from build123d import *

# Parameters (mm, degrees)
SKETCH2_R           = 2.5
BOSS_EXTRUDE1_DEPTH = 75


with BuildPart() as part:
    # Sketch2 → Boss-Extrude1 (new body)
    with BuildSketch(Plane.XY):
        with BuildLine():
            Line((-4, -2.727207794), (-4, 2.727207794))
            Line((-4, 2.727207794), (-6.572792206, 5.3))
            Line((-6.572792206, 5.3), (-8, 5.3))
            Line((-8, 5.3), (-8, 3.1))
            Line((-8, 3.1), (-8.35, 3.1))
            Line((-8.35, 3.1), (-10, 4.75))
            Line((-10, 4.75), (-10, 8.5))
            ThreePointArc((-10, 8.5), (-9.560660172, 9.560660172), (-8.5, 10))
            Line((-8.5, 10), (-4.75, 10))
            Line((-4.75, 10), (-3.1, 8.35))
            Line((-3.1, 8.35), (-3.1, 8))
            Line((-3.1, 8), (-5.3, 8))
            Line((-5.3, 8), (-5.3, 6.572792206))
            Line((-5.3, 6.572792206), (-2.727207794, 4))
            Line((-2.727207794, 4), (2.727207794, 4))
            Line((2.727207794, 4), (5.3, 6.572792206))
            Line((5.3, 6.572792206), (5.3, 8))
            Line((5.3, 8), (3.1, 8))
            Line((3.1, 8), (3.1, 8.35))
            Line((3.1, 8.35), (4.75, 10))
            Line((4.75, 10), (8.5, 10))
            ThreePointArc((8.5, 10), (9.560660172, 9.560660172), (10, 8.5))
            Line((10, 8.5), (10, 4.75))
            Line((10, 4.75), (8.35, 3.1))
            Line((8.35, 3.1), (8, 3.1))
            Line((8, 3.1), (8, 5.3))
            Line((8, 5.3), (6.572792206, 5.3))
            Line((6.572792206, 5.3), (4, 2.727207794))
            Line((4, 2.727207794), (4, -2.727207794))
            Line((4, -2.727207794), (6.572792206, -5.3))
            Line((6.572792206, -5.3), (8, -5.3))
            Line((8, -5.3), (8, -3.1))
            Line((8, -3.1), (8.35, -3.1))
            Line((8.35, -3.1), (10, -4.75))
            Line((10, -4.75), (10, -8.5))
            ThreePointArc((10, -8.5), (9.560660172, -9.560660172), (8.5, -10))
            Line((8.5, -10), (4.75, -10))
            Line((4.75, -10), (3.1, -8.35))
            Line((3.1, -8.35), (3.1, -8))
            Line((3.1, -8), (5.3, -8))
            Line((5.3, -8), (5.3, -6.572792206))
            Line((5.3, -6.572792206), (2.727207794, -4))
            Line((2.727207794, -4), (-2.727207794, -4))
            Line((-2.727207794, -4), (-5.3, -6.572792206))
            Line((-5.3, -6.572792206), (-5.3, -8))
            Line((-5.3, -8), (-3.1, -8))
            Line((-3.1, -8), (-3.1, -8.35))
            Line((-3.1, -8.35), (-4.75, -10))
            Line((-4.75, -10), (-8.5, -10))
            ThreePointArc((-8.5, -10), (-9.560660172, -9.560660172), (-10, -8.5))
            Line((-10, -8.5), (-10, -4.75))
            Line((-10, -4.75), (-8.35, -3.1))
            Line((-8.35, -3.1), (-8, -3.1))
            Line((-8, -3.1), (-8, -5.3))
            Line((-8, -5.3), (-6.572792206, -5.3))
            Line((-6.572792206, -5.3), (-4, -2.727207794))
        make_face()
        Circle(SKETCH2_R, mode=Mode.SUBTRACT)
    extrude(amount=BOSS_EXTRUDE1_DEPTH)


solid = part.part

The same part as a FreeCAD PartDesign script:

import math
import FreeCAD as App
import Part
import Sketcher

doc = App.newDocument("Part")
params = doc.addObject("Spreadsheet::Sheet", "Params")
for row, (alias, value) in enumerate([
    ("sketch1_diameter", "5 mm"),
    ("sketch1_radius", "1.5 mm"),
    ("sketch1_width", "2.2 mm"),
    ("sketch1_width2", "0.35 mm"),
    ("sketch1_width3", "3.75 mm"),
    ("pad1_length", "75 mm"),
], start=1):
    params.set(f"A{row}", alias)
    params.set(f"B{row}", "=" + value)
    params.setAlias(f"B{row}", alias)

body = doc.addObject("PartDesign::Body", "Body")

# Sketch on XY plane
sketch1 = doc.addObject("Sketcher::SketchObject", "Sketch")
body.addObject(sketch1)
sketch1.AttachmentSupport = (doc.XY_Plane, [""])
sketch1.MapMode = "FlatFace"
sketch1.addGeometry([
    Part.LineSegment(App.Vector(-4, 2.73, 0), App.Vector(-4, -2.73, 0)),  # 0
    Part.LineSegment(App.Vector(-4, -2.73, 0), App.Vector(-6.57, -5.3, 0)),  # 1
    Part.LineSegment(App.Vector(-6.57, -5.3, 0), App.Vector(-8, -5.3, 0)),  # 2
    Part.LineSegment(App.Vector(-8, -5.3, 0), App.Vector(-8, -3.1, 0)),  # 3
    Part.LineSegment(App.Vector(-8, -3.1, 0), App.Vector(-8.35, -3.1, 0)),  # 4
    Part.LineSegment(App.Vector(-8.35, -3.1, 0), App.Vector(-10, -4.75, 0)),  # 5
    Part.LineSegment(App.Vector(-10, -4.75, 0), App.Vector(-10, -8.5, 0)),  # 6
    Part.ArcOfCircle(Part.Circle(App.Vector(-8.5, -8.5, 0), App.Vector(0, 0, 1), 1.5), math.radians(180), math.radians(270)),  # 7
    Part.LineSegment(App.Vector(-8.5, -10, 0), App.Vector(-4.75, -10, 0)),  # 8
    Part.LineSegment(App.Vector(-4.75, -10, 0), App.Vector(-3.1, -8.35, 0)),  # 9
    Part.LineSegment(App.Vector(-3.1, -8.35, 0), App.Vector(-3.1, -8, 0)),  # 10
    Part.LineSegment(App.Vector(-3.1, -8, 0), App.Vector(-5.3, -8, 0)),  # 11
    Part.LineSegment(App.Vector(-5.3, -8, 0), App.Vector(-5.3, -6.57, 0)),  # 12
    Part.LineSegment(App.Vector(-5.3, -6.57, 0), App.Vector(-2.73, -4, 0)),  # 13
    Part.LineSegment(App.Vector(-2.73, -4, 0), App.Vector(2.73, -4, 0)),  # 14
    Part.LineSegment(App.Vector(2.73, -4, 0), App.Vector(5.3, -6.57, 0)),  # 15
    Part.LineSegment(App.Vector(5.3, -6.57, 0), App.Vector(5.3, -8, 0)),  # 16
    Part.LineSegment(App.Vector(5.3, -8, 0), App.Vector(3.1, -8, 0)),  # 17
    Part.LineSegment(App.Vector(3.1, -8, 0), App.Vector(3.1, -8.35, 0)),  # 18
    Part.LineSegment(App.Vector(3.1, -8.35, 0), App.Vector(4.75, -10, 0)),  # 19
    Part.LineSegment(App.Vector(4.75, -10, 0), App.Vector(8.5, -10, 0)),  # 20
    Part.ArcOfCircle(Part.Circle(App.Vector(8.5, -8.5, 0), App.Vector(0, 0, 1), 1.5), math.radians(-90), math.radians(0)),  # 21
    Part.LineSegment(App.Vector(10, -8.5, 0), App.Vector(10, -4.75, 0)),  # 22
    Part.LineSegment(App.Vector(10, -4.75, 0), App.Vector(8.35, -3.1, 0)),  # 23
    Part.LineSegment(App.Vector(8.35, -3.1, 0), App.Vector(8, -3.1, 0)),  # 24
    Part.LineSegment(App.Vector(8, -3.1, 0), App.Vector(8, -5.3, 0)),  # 25
    Part.LineSegment(App.Vector(8, -5.3, 0), App.Vector(6.57, -5.3, 0)),  # 26
    Part.LineSegment(App.Vector(6.57, -5.3, 0), App.Vector(4, -2.73, 0)),  # 27
    Part.LineSegment(App.Vector(4, -2.73, 0), App.Vector(4, 2.73, 0)),  # 28
    Part.LineSegment(App.Vector(4, 2.73, 0), App.Vector(6.57, 5.3, 0)),  # 29
    Part.LineSegment(App.Vector(6.57, 5.3, 0), App.Vector(8, 5.3, 0)),  # 30
    Part.LineSegment(App.Vector(8, 5.3, 0), App.Vector(8, 3.1, 0)),  # 31
    Part.LineSegment(App.Vector(8, 3.1, 0), App.Vector(8.35, 3.1, 0)),  # 32
    Part.LineSegment(App.Vector(8.35, 3.1, 0), App.Vector(10, 4.75, 0)),  # 33
    Part.LineSegment(App.Vector(10, 4.75, 0), App.Vector(10, 8.5, 0)),  # 34
    Part.ArcOfCircle(Part.Circle(App.Vector(8.5, 8.5, 0), App.Vector(0, 0, 1), 1.5), math.radians(0), math.radians(90)),  # 35
    Part.LineSegment(App.Vector(8.5, 10, 0), App.Vector(4.75, 10, 0)),  # 36
    Part.LineSegment(App.Vector(4.75, 10, 0), App.Vector(3.1, 8.35, 0)),  # 37
    Part.LineSegment(App.Vector(3.1, 8.35, 0), App.Vector(3.1, 8, 0)),  # 38
    Part.LineSegment(App.Vector(3.1, 8, 0), App.Vector(5.3, 8, 0)),  # 39
    Part.LineSegment(App.Vector(5.3, 8, 0), App.Vector(5.3, 6.57, 0)),  # 40
    Part.LineSegment(App.Vector(5.3, 6.57, 0), App.Vector(2.73, 4, 0)),  # 41
    Part.LineSegment(App.Vector(2.73, 4, 0), App.Vector(-2.73, 4, 0)),  # 42
    Part.LineSegment(App.Vector(-2.73, 4, 0), App.Vector(-5.3, 6.57, 0)),  # 43
    Part.LineSegment(App.Vector(-5.3, 6.57, 0), App.Vector(-5.3, 8, 0)),  # 44
    Part.LineSegment(App.Vector(-5.3, 8, 0), App.Vector(-3.1, 8, 0)),  # 45
    Part.LineSegment(App.Vector(-3.1, 8, 0), App.Vector(-3.1, 8.35, 0)),  # 46
    Part.LineSegment(App.Vector(-3.1, 8.35, 0), App.Vector(-4.75, 10, 0)),  # 47
    Part.LineSegment(App.Vector(-4.75, 10, 0), App.Vector(-8.5, 10, 0)),  # 48
    Part.ArcOfCircle(Part.Circle(App.Vector(-8.5, 8.5, 0), App.Vector(0, 0, 1), 1.5), math.radians(90), math.radians(180)),  # 49
    Part.LineSegment(App.Vector(-10, 8.5, 0), App.Vector(-10, 4.75, 0)),  # 50
    Part.LineSegment(App.Vector(-10, 4.75, 0), App.Vector(-8.35, 3.1, 0)),  # 51
    Part.LineSegment(App.Vector(-8.35, 3.1, 0), App.Vector(-8, 3.1, 0)),  # 52
    Part.LineSegment(App.Vector(-8, 3.1, 0), App.Vector(-8, 5.3, 0)),  # 53
    Part.LineSegment(App.Vector(-8, 5.3, 0), App.Vector(-6.57, 5.3, 0)),  # 54
    Part.LineSegment(App.Vector(-6.57, 5.3, 0), App.Vector(-4, 2.73, 0)),  # 55
    Part.Circle(App.Vector(0, 0, 0), App.Vector(0, 0, 1), 2.5),  # 56
], False)
sketch1.addConstraint([
    Sketcher.Constraint("Coincident", 0, 2, 1, 1),
    Sketcher.Constraint("Coincident", 1, 2, 2, 1),
    Sketcher.Constraint("Coincident", 2, 2, 3, 1),
    Sketcher.Constraint("Coincident", 3, 2, 4, 1),
    Sketcher.Constraint("Coincident", 4, 2, 5, 1),
    Sketcher.Constraint("Coincident", 5, 2, 6, 1),
    Sketcher.Constraint("Tangent", 6, 2, 7, 1),
    Sketcher.Constraint("Tangent", 7, 2, 8, 1),
    Sketcher.Constraint("Coincident", 8, 2, 9, 1),
    Sketcher.Constraint("Coincident", 9, 2, 10, 1),
    Sketcher.Constraint("Coincident", 10, 2, 11, 1),
    Sketcher.Constraint("Coincident", 11, 2, 12, 1),
    Sketcher.Constraint("Coincident", 12, 2, 13, 1),
    Sketcher.Constraint("Coincident", 13, 2, 14, 1),
    Sketcher.Constraint("Coincident", 14, 2, 15, 1),
    Sketcher.Constraint("Coincident", 15, 2, 16, 1),
    Sketcher.Constraint("Coincident", 16, 2, 17, 1),
    Sketcher.Constraint("Coincident", 17, 2, 18, 1),
    Sketcher.Constraint("Coincident", 18, 2, 19, 1),
    Sketcher.Constraint("Coincident", 19, 2, 20, 1),
    Sketcher.Constraint("Tangent", 20, 2, 21, 1),
    Sketcher.Constraint("Tangent", 21, 2, 22, 1),
    Sketcher.Constraint("Coincident", 22, 2, 23, 1),
    Sketcher.Constraint("Coincident", 23, 2, 24, 1),
    Sketcher.Constraint("Coincident", 24, 2, 25, 1),
    Sketcher.Constraint("Coincident", 25, 2, 26, 1),
    Sketcher.Constraint("Coincident", 26, 2, 27, 1),
    Sketcher.Constraint("Coincident", 27, 2, 28, 1),
    Sketcher.Constraint("Coincident", 28, 2, 29, 1),
    Sketcher.Constraint("Coincident", 29, 2, 30, 1),
    Sketcher.Constraint("Coincident", 30, 2, 31, 1),
    Sketcher.Constraint("Coincident", 31, 2, 32, 1),
    Sketcher.Constraint("Coincident", 32, 2, 33, 1),
    Sketcher.Constraint("Coincident", 33, 2, 34, 1),
    Sketcher.Constraint("Tangent", 34, 2, 35, 1),
    Sketcher.Constraint("Tangent", 35, 2, 36, 1),
    Sketcher.Constraint("Coincident", 36, 2, 37, 1),
    Sketcher.Constraint("Coincident", 37, 2, 38, 1),
    Sketcher.Constraint("Coincident", 38, 2, 39, 1),
    Sketcher.Constraint("Coincident", 39, 2, 40, 1),
    Sketcher.Constraint("Coincident", 40, 2, 41, 1),
    Sketcher.Constraint("Coincident", 41, 2, 42, 1),
    Sketcher.Constraint("Coincident", 42, 2, 43, 1),
    Sketcher.Constraint("Coincident", 43, 2, 44, 1),
    Sketcher.Constraint("Coincident", 44, 2, 45, 1),
    Sketcher.Constraint("Coincident", 45, 2, 46, 1),
    Sketcher.Constraint("Coincident", 46, 2, 47, 1),
    Sketcher.Constraint("Coincident", 47, 2, 48, 1),
    Sketcher.Constraint("Tangent", 48, 2, 49, 1),
    Sketcher.Constraint("Tangent", 49, 2, 50, 1),
    Sketcher.Constraint("Coincident", 50, 2, 51, 1),
    Sketcher.Constraint("Coincident", 51, 2, 52, 1),
    Sketcher.Constraint("Coincident", 52, 2, 53, 1),
    Sketcher.Constraint("Coincident", 53, 2, 54, 1),
    Sketcher.Constraint("Coincident", 54, 2, 55, 1),
    Sketcher.Constraint("Coincident", 55, 2, 0, 1),
    Sketcher.Constraint("Vertical", 0),
    Sketcher.Constraint("Horizontal", 2),
    Sketcher.Constraint("Vertical", 3),
    Sketcher.Constraint("Horizontal", 4),
    Sketcher.Constraint("Vertical", 6),
    Sketcher.Constraint("Horizontal", 8),
    Sketcher.Constraint("Vertical", 10),
    Sketcher.Constraint("Horizontal", 11),
    Sketcher.Constraint("Vertical", 12),
    Sketcher.Constraint("Horizontal", 14),
    Sketcher.Constraint("Vertical", 16),
    Sketcher.Constraint("Horizontal", 17),
    Sketcher.Constraint("Vertical", 18),
    Sketcher.Constraint("Horizontal", 20),
    Sketcher.Constraint("Vertical", 22),
    Sketcher.Constraint("Horizontal", 24),
    Sketcher.Constraint("Vertical", 25),
    Sketcher.Constraint("Horizontal", 26),
    Sketcher.Constraint("Vertical", 28),
    Sketcher.Constraint("Horizontal", 30),
    Sketcher.Constraint("Vertical", 31),
    Sketcher.Constraint("Horizontal", 32),
    Sketcher.Constraint("Vertical", 34),
    Sketcher.Constraint("Horizontal", 36),
    Sketcher.Constraint("Vertical", 38),
    Sketcher.Constraint("Horizontal", 39),
    Sketcher.Constraint("Vertical", 40),
    Sketcher.Constraint("Horizontal", 42),
    Sketcher.Constraint("Vertical", 44),
    Sketcher.Constraint("Horizontal", 45),
    Sketcher.Constraint("Vertical", 46),
    Sketcher.Constraint("Horizontal", 48),
    Sketcher.Constraint("Vertical", 50),
    Sketcher.Constraint("Horizontal", 52),
    Sketcher.Constraint("Vertical", 53),
    Sketcher.Constraint("Horizontal", 54),
    Sketcher.Constraint("Coincident", 56, 3, -1, 1),
    Sketcher.Constraint("Equal", 7, 21),
    Sketcher.Constraint("Equal", 21, 35),
    Sketcher.Constraint("Equal", 35, 49),
    Sketcher.Constraint("Symmetric", 7, 3, 35, 3, -1, 1),
    Sketcher.Constraint("Symmetric", 21, 3, 49, 3, -1, 1),
    Sketcher.Constraint("Symmetric", 0, 2, 28, 2, -1, 1),
    Sketcher.Constraint("Symmetric", 1, 2, 29, 2, -1, 1),
    Sketcher.Constraint("Symmetric", 3, 2, 31, 2, -1, 1),
    Sketcher.Constraint("Symmetric", 9, 2, 37, 2, -1, 1),
    Sketcher.Constraint("Symmetric", 11, 2, 39, 2, -1, 1),
    Sketcher.Constraint("Symmetric", 13, 2, 41, 2, -1, 1),
    Sketcher.Constraint("Symmetric", 15, 2, 43, 2, -1, 1),
    Sketcher.Constraint("Symmetric", 17, 2, 45, 2, -1, 1),
    Sketcher.Constraint("Symmetric", 23, 2, 51, 2, -1, 1),
    Sketcher.Constraint("Symmetric", 25, 2, 53, 2, -1, 1),
    Sketcher.Constraint("Symmetric", 7, 3, 21, 3, -2),
    Sketcher.Constraint("Symmetric", 12, 2, 15, 2, -2),
    Sketcher.Constraint("Symmetric", 10, 2, 17, 2, -2),
    Sketcher.Constraint("Symmetric", 4, 2, 23, 2, -2),
    Sketcher.Constraint("Symmetric", 2, 2, 25, 2, -2),
    Sketcher.Constraint("Parallel", 1, 5),
    Sketcher.Constraint("Parallel", 5, 9),
    Sketcher.Constraint("Parallel", 9, 13),
    Sketcher.Constraint("Perpendicular", 13, 15),
    Sketcher.Constraint("Parallel", 15, 19),
    Sketcher.Constraint("Parallel", 19, 23),
    Sketcher.Constraint("Parallel", 23, 27),
    Sketcher.Constraint("Parallel", 29, 33),
    Sketcher.Constraint("Parallel", 33, 37),
    Sketcher.Constraint("Parallel", 37, 41),
    Sketcher.Constraint("Perpendicular", 41, 43),
    Sketcher.Constraint("Parallel", 43, 47),
    Sketcher.Constraint("Parallel", 47, 51),
    Sketcher.Constraint("Parallel", 51, 55),
    Sketcher.Constraint("Horizontal", 9, 2, 18, 2),
    Sketcher.Constraint("Horizontal", 5, 2, 22, 2),
    Sketcher.Constraint("Horizontal", 0, 2, 27, 2),
    Sketcher.Constraint("Horizontal", 37, 2, 46, 2),
    Sketcher.Constraint("Horizontal", 33, 2, 50, 2),
    Sketcher.Constraint("Horizontal", 28, 2, 55, 2),
    Sketcher.Constraint("Equal", 42, 0),
    Sketcher.Constraint("Equal", 45, 3),
    Sketcher.Constraint("Equal", 48, 6),
    Sketcher.Constraint("Equal", 52, 10),
    Sketcher.Constraint("Equal", 54, 12),
    Sketcher.Constraint("Equal", 5, 9),
    Sketcher.Constraint("Equal", 1, 13),
    Sketcher.Constraint("Diameter", 56, 5.0),
    Sketcher.Constraint("Radius", 7, 1.5),
    Sketcher.Constraint("DistanceX", 11, 2, 11, 1, 2.2),
    Sketcher.Constraint("DistanceX", 0, 2, -1, 1, 4.0),
    Sketcher.Constraint("DistanceX", 2, 2, -1, 1, 8.0),
    Sketcher.Constraint("DistanceX", 5, 2, -1, 1, 10.0),
    Sketcher.Constraint("DistanceX", 4, 2, 4, 1, 0.35),
    Sketcher.Constraint("DistanceX", 8, 1, 8, 2, 3.75),
    Sketcher.Constraint("DistanceX", 2, 2, 2, 1, 1.427208),
])
sketch1.setExpression("Constraints[140]", "Params.sketch1_diameter")
sketch1.setExpression("Constraints[141]", "Params.sketch1_radius")
sketch1.setExpression("Constraints[142]", "Params.sketch1_width")
sketch1.setExpression("Constraints[146]", "Params.sketch1_width2")
sketch1.setExpression("Constraints[147]", "Params.sketch1_width3")
pad1 = doc.addObject("PartDesign::Pad", "Pad")
body.addObject(pad1)
pad1.Profile = sketch1
pad1.setExpression("Length", "Params.pad1_length")

doc.recompute()
